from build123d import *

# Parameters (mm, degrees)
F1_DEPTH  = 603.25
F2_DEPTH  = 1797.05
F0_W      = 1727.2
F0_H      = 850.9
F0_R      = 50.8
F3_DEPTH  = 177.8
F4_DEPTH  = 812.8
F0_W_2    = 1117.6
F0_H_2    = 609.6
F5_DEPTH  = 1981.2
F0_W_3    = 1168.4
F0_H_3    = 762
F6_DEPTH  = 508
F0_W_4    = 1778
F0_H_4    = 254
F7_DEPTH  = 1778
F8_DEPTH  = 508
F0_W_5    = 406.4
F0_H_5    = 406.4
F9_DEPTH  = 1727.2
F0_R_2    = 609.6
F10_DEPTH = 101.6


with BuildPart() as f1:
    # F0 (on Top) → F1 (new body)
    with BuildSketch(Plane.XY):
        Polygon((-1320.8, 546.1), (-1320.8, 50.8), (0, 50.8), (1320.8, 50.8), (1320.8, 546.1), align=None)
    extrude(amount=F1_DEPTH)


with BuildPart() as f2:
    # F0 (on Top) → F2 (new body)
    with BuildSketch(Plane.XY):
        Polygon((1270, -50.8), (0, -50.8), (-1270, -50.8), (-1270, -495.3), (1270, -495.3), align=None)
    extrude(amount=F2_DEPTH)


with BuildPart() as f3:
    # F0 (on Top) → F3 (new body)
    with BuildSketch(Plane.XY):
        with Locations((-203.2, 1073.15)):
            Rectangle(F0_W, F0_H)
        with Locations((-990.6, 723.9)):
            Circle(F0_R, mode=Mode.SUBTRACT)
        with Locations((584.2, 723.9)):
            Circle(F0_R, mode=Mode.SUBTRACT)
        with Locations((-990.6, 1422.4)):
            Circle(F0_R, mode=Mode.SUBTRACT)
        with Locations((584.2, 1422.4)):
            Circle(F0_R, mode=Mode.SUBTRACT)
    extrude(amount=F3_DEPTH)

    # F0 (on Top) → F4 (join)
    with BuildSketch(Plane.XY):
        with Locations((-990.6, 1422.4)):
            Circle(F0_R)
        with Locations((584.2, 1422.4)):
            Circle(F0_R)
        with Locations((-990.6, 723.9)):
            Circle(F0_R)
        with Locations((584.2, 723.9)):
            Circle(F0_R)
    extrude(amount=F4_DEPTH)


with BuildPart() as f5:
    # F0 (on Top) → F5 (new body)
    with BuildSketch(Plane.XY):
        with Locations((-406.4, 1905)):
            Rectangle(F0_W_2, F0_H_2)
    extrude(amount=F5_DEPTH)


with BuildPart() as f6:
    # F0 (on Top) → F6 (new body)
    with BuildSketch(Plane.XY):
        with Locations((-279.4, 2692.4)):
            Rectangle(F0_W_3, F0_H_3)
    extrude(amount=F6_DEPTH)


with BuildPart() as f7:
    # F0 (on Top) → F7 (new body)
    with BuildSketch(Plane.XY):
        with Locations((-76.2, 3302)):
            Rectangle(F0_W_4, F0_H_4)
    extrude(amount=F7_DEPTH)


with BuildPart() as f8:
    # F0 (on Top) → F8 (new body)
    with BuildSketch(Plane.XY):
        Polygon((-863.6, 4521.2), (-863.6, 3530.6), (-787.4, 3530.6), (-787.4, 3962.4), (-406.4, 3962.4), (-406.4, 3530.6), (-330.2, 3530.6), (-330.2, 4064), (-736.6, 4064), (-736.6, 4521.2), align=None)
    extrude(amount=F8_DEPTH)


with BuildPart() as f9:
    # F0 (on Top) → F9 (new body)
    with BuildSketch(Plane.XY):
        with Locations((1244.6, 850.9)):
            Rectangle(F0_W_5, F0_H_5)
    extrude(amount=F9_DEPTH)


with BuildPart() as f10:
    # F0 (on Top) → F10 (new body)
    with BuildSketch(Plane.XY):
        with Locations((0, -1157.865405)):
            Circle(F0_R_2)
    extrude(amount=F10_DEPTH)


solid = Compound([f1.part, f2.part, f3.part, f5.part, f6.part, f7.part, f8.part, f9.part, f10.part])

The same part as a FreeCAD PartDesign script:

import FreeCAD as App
import Part
import Sketcher

V = App.Vector
Q = App.Units.Quantity

doc = App.newDocument("Part")
body = doc.addObject("PartDesign::Body", "Body")

sketch1 = doc.addObject("Sketcher::SketchObject", "Sketch")
body.addObject(sketch1)
sketch1.AttachmentSupport = (doc.XY_Plane, [""])
sketch1.MapMode = "FlatFace"
sketch1.addGeometry(Part.LineSegment(V(-1320.8, 546.1, 0), V(-1320.8, 50.8, 0)), False)
sketch1.addGeometry(Part.LineSegment(V(-1320.8, 50.8, 0), V(1320.8, 50.8, 0)), False)
sketch1.addGeometry(Part.LineSegment(V(1320.8, 50.8, 0), V(1320.8, 546.1, 0)), False)
sketch1.addGeometry(Part.LineSegment(V(1320.8, 546.1, 0), V(-1320.8, 546.1, 0)), False)
sketch1.addConstraint(Sketcher.Constraint("Coincident", 0, 2, 1, 1))
sketch1.addConstraint(Sketcher.Constraint("Coincident", 1, 2, 2, 1))
sketch1.addConstraint(Sketcher.Constraint("Coincident", 2, 2, 3, 1))
sketch1.addConstraint(Sketcher.Constraint("Coincident", 3, 2, 0, 1))
sketch1.addConstraint(Sketcher.Constraint("Vertical", 0))
sketch1.addConstraint(Sketcher.Constraint("Horizontal", 1))
sketch1.addConstraint(Sketcher.Constraint("Vertical", 2))
sketch1.addConstraint(Sketcher.Constraint("Horizontal", 3))
sketch1.addConstraint(Sketcher.Constraint("DistanceX", 1, 1, 1, 2, Q("104 in")))
sketch1.addConstraint(Sketcher.Constraint("DistanceY", 0, 2, 0, 1, Q("19.5 in")))
sketch1.addConstraint(Sketcher.Constraint("DistanceX", 0, 2, -1, 1, Q("52 in")))
sketch1.addConstraint(Sketcher.Constraint("DistanceY", -1, 1, 0, 2, Q("2 in")))
pad1 = doc.addObject("PartDesign::Pad", "Pad")
body.addObject(pad1)
pad1.Profile = sketch1
pad1.Length = Q("23.75 in")
body2 = doc.addObject("PartDesign::Body", "Body001")

sketch2 = doc.addObject("Sketcher::SketchObject", "Sketch001")
body2.addObject(sketch2)
sketch2.AttachmentSupport = (doc.getObject("XY_Plane001"), [""])
sketch2.MapMode = "FlatFace"
sketch2.addGeometry(Part.LineSegment(V(1270, -50.8, 0), V(-1270, -50.8, 0)), False)
sketch2.addGeometry(Part.LineSegment(V(-1270, -50.8, 0), V(-1270, -495.3, 0)), False)
sketch2.addGeometry(Part.LineSegment(V(-1270, -495.3, 0), V(1270, -495.3, 0)), False)
sketch2.addGeometry(Part.LineSegment(V(1270, -495.3, 0), V(1270, -50.8, 0)), False)
sketch2.addConstraint(Sketcher.Constraint("Coincident", 0, 2, 1, 1))
sketch2.addConstraint(Sketcher.Constraint("Coincident", 1, 2, 2, 1))
sketch2.addConstraint(Sketcher.Constraint("Coincident", 2, 2, 3, 1))
sketch2.addConstraint(Sketcher.Constraint("Coincident", 3, 2, 0, 1))
sketch2.addConstraint(Sketcher.Constraint("Horizontal", 0))
sketch2.addConstraint(Sketcher.Constraint("Vertical", 1))
sketch2.addConstraint(Sketcher.Constraint("Horizontal", 2))
sketch2.addConstraint(Sketcher.Constraint("Vertical", 3))
sketch2.addConstraint(Sketcher.Constraint("DistanceX", 0, 2, 0, 1, Q("100 in")))
sketch2.addConstraint(Sketcher.Constraint("DistanceY", 1, 2, 1, 1, Q("17.5 in")))
sketch2.addConstraint(Sketcher.Constraint("DistanceX", 0, 2, -1, 1, Q("50 in")))
sketch2.addConstraint(Sketcher.Constraint("DistanceY", 0, 2, -1, 1, Q("2 in")))
pad2 = doc.addObject("PartDesign::Pad", "Pad001")
body2.addObject(pad2)
pad2.Profile = sketch2
pad2.Length = Q("70.75 in")
body3 = doc.addObject("PartDesign::Body", "Body002")

sketch3 = doc.addObject("Sketcher::SketchObject", "Sketch002")
body3.addObject(sketch3)
sketch3.AttachmentSupport = (doc.getObject("XY_Plane002"), [""])
sketch3.MapMode = "FlatFace"
sketch3.addGeometry(Part.LineSegment(V(-1066.8, 1498.6, 0), V(-1066.8, 647.7, 0)), False)
sketch3.addGeometry(Part.LineSegment(V(-1066.8, 647.7, 0), V(660.4, 647.7, 0)), False)
sketch3.addGeometry(Part.LineSegment(V(660.4, 647.7, 0), V(660.4, 1498.6, 0)), False)
sketch3.addGeometry(Part.LineSegment(V(660.4, 1498.6, 0), V(-1066.8, 1498.6, 0)), False)
sketch3.addGeometry(Part.Circle(V(-990.6, 723.9, 0), V(0, 0, 1), 50.8), False)
sketch3.addGeometry(Part.Circle(V(584.2, 723.9, 0), V(0, 0, 1), 50.8), False)
sketch3.addGeometry(Part.Circle(V(-990.6, 1422.4, 0), V(0, 0, 1), 50.8), False)
sketch3.addGeometry(Part.Circle(V(584.2, 1422.4, 0), V(0, 0, 1), 50.8), False)
sketch3.addConstraint(Sketcher.Constraint("Coincident", 0, 2, 1, 1))
sketch3.addConstraint(Sketcher.Constraint("Coincident", 1, 2, 2, 1))
sketch3.addConstraint(Sketcher.Constraint("Coincident", 2, 2, 3, 1))
sketch3.addConstraint(Sketcher.Constraint("Coincident", 3, 2, 0, 1))
sketch3.addConstraint(Sketcher.Constraint("Vertical", 0))
sketch3.addConstraint(Sketcher.Constraint("Horizontal", 1))
sketch3.addConstraint(Sketcher.Constraint("Vertical", 2))
sketch3.addConstraint(Sketcher.Constraint("Horizontal", 3))
sketch3.addConstraint(Sketcher.Constraint("Equal", 4, 5))
sketch3.addConstraint(Sketcher.Constraint("Equal", 5, 6))
sketch3.addConstraint(Sketcher.Constraint("Equal", 6, 7))
sketch3.addConstraint(Sketcher.Constraint("Horizontal", 4, 3, 5, 3))
sketch3.addConstraint(Sketcher.Constraint("Horizontal", 6, 3, 7, 3))
sketch3.addConstraint(Sketcher.Constraint("Vertical", 4, 3, 6, 3))
sketch3.addConstraint(Sketcher.Constraint("Vertical", 5, 3, 7, 3))
sketch3.addConstraint(Sketcher.Constraint("Diameter", 4, Q("4 in")))
sketch3.addConstraint(Sketcher.Constraint("DistanceX", 1, 1, 1, 2, Q("68 in")))
sketch3.addConstraint(Sketcher.Constraint("DistanceY", 0, 2, 0, 1, Q("33.5 in")))
sketch3.addConstraint(Sketcher.Constraint("DistanceX", 4, 3, -1, 1, Q("39 in")))
sketch3.addConstraint(Sketcher.Constraint("DistanceX", -1, 1, 5, 3, Q("23 in")))
sketch3.addConstraint(Sketcher.Constraint("DistanceY", -1, 1, 6, 3, Q("56 in")))
sketch3.addConstraint(Sketcher.Constraint("DistanceX", 0, 2, -1, 1, Q("42 in")))
sketch3.addConstraint(Sketcher.Constraint("DistanceY", -1, 1, 2, 2, Q("59 in")))
sketch3.addConstraint(Sketcher.Constraint("DistanceY", 0, 2, 4, 3, Q("3 in")))
pad3 = doc.addObject("PartDesign::Pad", "Pad002")
body3.addObject(pad3)
pad3.Profile = sketch3
pad3.Length = Q("7 in")

sketch4 = doc.addObject("Sketcher::SketchObject", "Sketch003")
body3.addObject(sketch4)
sketch4.AttachmentSupport = (doc.getObject("XY_Plane002"), [""])
sketch4.MapMode = "FlatFace"
sketch4.addGeometry(Part.Circle(V(-990.6, 1422.4, 0), V(0, 0, 1), 50.8), False)
sketch4.addGeometry(Part.Circle(V(584.2, 1422.4, 0), V(0, 0, 1), 50.8), False)
sketch4.addGeometry(Part.Circle(V(-990.6, 723.9, 0), V(0, 0, 1), 50.8), False)
sketch4.addGeometry(Part.Circle(V(584.2, 723.9, 0), V(0, 0, 1), 50.8), False)
sketch4.addConstraint(Sketcher.Constraint("Equal", 0, 1))
sketch4.addConstraint(Sketcher.Constraint("Equal", 1, 2))
sketch4.addConstraint(Sketcher.Constraint("Equal", 2, 3))
sketch4.addConstraint(Sketcher.Constraint("Horizontal", 0, 3, 1, 3))
sketch4.addConstraint(Sketcher.Constraint("Horizontal", 2, 3, 3, 3))
sketch4.addConstraint(Sketcher.Constraint("Vertical", 0, 3, 2, 3))
sketch4.addConstraint(Sketcher.Constraint("Vertical", 1, 3, 3, 3))
sketch4.addConstraint(Sketcher.Constraint("Diameter", 0, Q("4 in")))
sketch4.addConstraint(Sketcher.Constraint("DistanceX", 0, 3, -1, 1, Q("39 in")))
sketch4.addConstraint(Sketcher.Constraint("DistanceY", -1, 1, 0, 3, Q("56 in")))
sketch4.addConstraint(Sketcher.Constraint("DistanceX", -1, 1, 1, 3, Q("23 in")))
sketch4.addConstraint(Sketcher.Constraint("DistanceY", -1, 1, 2, 3, Q("28.5 in")))
pad4 = doc.addObject("PartDesign::Pad", "Pad003")
body3.addObject(pad4)
pad4.Profile = sketch4
pad4.Length = Q("32 in")
body4 = doc.addObject("PartDesign::Body", "Body003")

sketch5 = doc.addObject("Sketcher::SketchObject", "Sketch004")
body4.addObject(sketch5)
sketch5.AttachmentSupport = (doc.getObject("XY_Plane003"), [""])
sketch5.MapMode = "FlatFace"
sketch5.addGeometry(Part.LineSegment(V(-965.2, 2209.8, 0), V(-965.2, 1600.2, 0)), False)
sketch5.addGeometry(Part.LineSegment(V(-965.2, 1600.2, 0), V(152.4, 1600.2, 0)), False)
sketch5.addGeometry(Part.LineSegment(V(152.4, 1600.2, 0), V(152.4, 2209.8, 0)), False)
sketch5.addGeometry(Part.LineSegment(V(152.4, 2209.8, 0), V(-965.2, 2209.8, 0)), False)
sketch5.addConstraint(Sketcher.Constraint("Coincident", 0, 2, 1, 1))
sketch5.addConstraint(Sketcher.Constraint("Coincident", 1, 2, 2, 1))
sketch5.addConstraint(Sketcher.Constraint("Coincident", 2, 2, 3, 1))
sketch5.addConstraint(Sketcher.Constraint("Coincident", 3, 2, 0, 1))
sketch5.addConstraint(Sketcher.Constraint("Vertical", 0))
sketch5.addConstraint(Sketcher.Constraint("Horizontal", 1))
sketch5.addConstraint(Sketcher.Constraint("Vertical", 2))
sketch5.addConstraint(Sketcher.Constraint("Horizontal", 3))
sketch5.addConstraint(Sketcher.Constraint("DistanceX", 1, 1, 1, 2, Q("44 in")))
sketch5.addConstraint(Sketcher.Constraint("DistanceY", 0, 2, 0, 1, Q("24 in")))
sketch5.addConstraint(Sketcher.Constraint("DistanceX", 0, 2, -1, 1, Q("38 in")))
sketch5.addConstraint(Sketcher.Constraint("DistanceY", -1, 1, 0, 2, Q("63 in")))
pad5 = doc.addObject("PartDesign::Pad", "Pad004")
body4.addObject(pad5)
pad5.Profile = sketch5
pad5.Length = Q("78 in")
body5 = doc.addObject("PartDesign::Body", "Body004")

sketch6 = doc.addObject("Sketcher::SketchObject", "Sketch005")
body5.addObject(sketch6)
sketch6.AttachmentSupport = (doc.getObject("XY_Plane004"), [""])
sketch6.MapMode = "FlatFace"
sketch6.addGeometry(Part.LineSegment(V(-863.6, 3073.4, 0), V(-863.6, 2311.4, 0)), False)
sketch6.addGeometry(Part.LineSegment(V(-863.6, 2311.4, 0), V(304.8, 2311.4, 0)), False)
sketch6.addGeometry(Part.LineSegment(V(304.8, 2311.4, 0), V(304.8, 3073.4, 0)), False)
sketch6.addGeometry(Part.LineSegment(V(304.8, 3073.4, 0), V(-863.6, 3073.4, 0)), False)
sketch6.addConstraint(Sketcher.Constraint("Coincident", 0, 2, 1, 1))
sketch6.addConstraint(Sketcher.Constraint("Coincident", 1, 2, 2, 1))
sketch6.addConstraint(Sketcher.Constraint("Coincident", 2, 2, 3, 1))
sketch6.addConstraint(Sketcher.Constraint("Coincident", 3, 2, 0, 1))
sketch6.addConstraint(Sketcher.Constraint("Vertical", 0))
sketch6.addConstraint(Sketcher.Constraint("Horizontal", 1))
sketch6.addConstraint(Sketcher.Constraint("Vertical", 2))
sketch6.addConstraint(Sketcher.Constraint("Horizontal", 3))
sketch6.addConstraint(Sketcher.Constraint("DistanceX", 1, 1, 1, 2, Q("46 in")))
sketch6.addConstraint(Sketcher.Constraint("DistanceY", 0, 2, 0, 1, Q("30 in")))
sketch6.addConstraint(Sketcher.Constraint("DistanceX", 0, 2, -1, 1, Q("34 in")))
sketch6.addConstraint(Sketcher.Constraint("DistanceY", -1, 1, 0, 2, Q("91 in")))
pad6 = doc.addObject("PartDesign::Pad", "Pad005")
body5.addObject(pad6)
pad6.Profile = sketch6
pad6.Length = Q("20 in")
body6 = doc.addObject("PartDesign::Body", "Body005")

sketch7 = doc.addObject("Sketcher::SketchObject", "Sketch006")
body6.addObject(sketch7)
sketch7.AttachmentSupport = (doc.getObject("XY_Plane005"), [""])
sketch7.MapMode = "FlatFace"
sketch7.addGeometry(Part.LineSegment(V(-965.2, 3429, 0), V(-965.2, 3175, 0)), False)
sketch7.addGeometry(Part.LineSegment(V(-965.2, 3175, 0), V(812.8, 3175, 0)), False)
sketch7.addGeometry(Part.LineSegment(V(812.8, 3175, 0), V(812.8, 3429, 0)), False)
sketch7.addGeometry(Part.LineSegment(V(812.8, 3429, 0), V(-965.2, 3429, 0)), False)
sketch7.addConstraint(Sketcher.Constraint("Coincident", 0, 2, 1, 1))
sketch7.addConstraint(Sketcher.Constraint("Coincident", 1, 2, 2, 1))
sketch7.addConstraint(Sketcher.Constraint("Coincident", 2, 2, 3, 1))
sketch7.addConstraint(Sketcher.Constraint("Coincident", 3, 2, 0, 1))
sketch7.addConstraint(Sketcher.Constraint("Vertical", 0))
sketch7.addConstraint(Sketcher.Constraint("Horizontal", 1))
sketch7.addConstraint(Sketcher.Constraint("Vertical", 2))
sketch7.addConstraint(Sketcher.Constraint("Horizontal", 3))
sketch7.addConstraint(Sketcher.Constraint("DistanceX", 1, 1, 1, 2, Q("70 in")))
sketch7.addConstraint(Sketcher.Constraint("DistanceY", 0, 2, 0, 1, Q("10 in")))
sketch7.addConstraint(Sketcher.Constraint("DistanceX", 0, 2, -1, 1, Q("38 in")))
sketch7.addConstraint(Sketcher.Constraint("DistanceY", -1, 1, 0, 2, Q("125 in")))
pad7 = doc.addObject("PartDesign::Pad", "Pad006")
body6.addObject(pad7)
pad7.Profile = sketch7
pad7.Length = Q("70 in")
body7 = doc.addObject("PartDesign::Body", "Body006")

sketch8 = doc.addObject("Sketcher::SketchObject", "Sketch007")
body7.addObject(sketch8)
sketch8.AttachmentSupport = (doc.getObject("XY_Plane006"), [""])
sketch8.MapMode = "FlatFace"
sketch8.addGeometry(Part.LineSegment(V(-863.6, 4521.2, 0), V(-863.6, 3530.6, 0)), False)
sketch8.addGeometry(Part.LineSegment(V(-863.6, 3530.6, 0), V(-787.4, 3530.6, 0)), False)
sketch8.addGeometry(Part.LineSegment(V(-787.4, 3530.6, 0), V(-787.4, 3962.4, 0)), False)
sketch8.addGeometry(Part.LineSegment(V(-787.4, 3962.4, 0), V(-406.4, 3962.4, 0)), False)
sketch8.addGeometry(Part.LineSegment(V(-406.4, 3962.4, 0), V(-406.4, 3530.6, 0)), False)
sketch8.addGeometry(Part.LineSegment(V(-406.4, 3530.6, 0), V(-330.2, 3530.6, 0)), False)
sketch8.addGeometry(Part.LineSegment(V(-330.2, 3530.6, 0), V(-330.2, 4064, 0)), False)
sketch8.addGeometry(Part.LineSegment(V(-330.2, 4064, 0), V(-736.6, 4064, 0)), False)
sketch8.addGeometry(Part.LineSegment(V(-736.6, 4064, 0), V(-736.6, 4521.2, 0)), False)
sketch8.addGeometry(Part.LineSegment(V(-736.6, 4521.2, 0), V(-863.6, 4521.2, 0)), False)
sketch8.addConstraint(Sketcher.Constraint("Coincident", 0, 2, 1, 1))
sketch8.addConstraint(Sketcher.Constraint("Coincident", 1, 2, 2, 1))
sketch8.addConstraint(Sketcher.Constraint("Coincident", 2, 2, 3, 1))
sketch8.addConstraint(Sketcher.Constraint("Coincident", 3, 2, 4, 1))
sketch8.addConstraint(Sketcher.Constraint("Coincident", 4, 2, 5, 1))
sketch8.addConstraint(Sketcher.Constraint("Coincident", 5, 2, 6, 1))
sketch8.addConstraint(Sketcher.Constraint("Coincident", 6, 2, 7, 1))
sketch8.addConstraint(Sketcher.Constraint("Coincident", 7, 2, 8, 1))
sketch8.addConstraint(Sketcher.Constraint("Coincident", 8, 2, 9, 1))
sketch8.addConstraint(Sketcher.Constraint("Coincident", 9, 2, 0, 1))
sketch8.addConstraint(Sketcher.Constraint("Vertical", 0))
sketch8.addConstraint(Sketcher.Constraint("Horizontal", 1))
sketch8.addConstraint(Sketcher.Constraint("Vertical", 2))
sketch8.addConstraint(Sketcher.Constraint("Horizontal", 3))
sketch8.addConstraint(Sketcher.Constraint("Vertical", 4))
sketch8.addConstraint(Sketcher.Constraint("Horizontal", 5))
sketch8.addConstraint(Sketcher.Constraint("Vertical", 6))
sketch8.addConstraint(Sketcher.Constraint("Horizontal", 7))
sketch8.addConstraint(Sketcher.Constraint("Vertical", 8))
sketch8.addConstraint(Sketcher.Constraint("Horizontal", 9))
sketch8.addConstraint(Sketcher.Constraint("Horizontal", 1, 2, 4, 2))
sketch8.addConstraint(Sketcher.Constraint("Equal", 1, 5))
sketch8.addConstraint(Sketcher.Constraint("DistanceX", 1, 1, 1, 2, Q("3 in")))
sketch8.addConstraint(Sketcher.Constraint("DistanceX", 3, 1, 3, 2, Q("15 in")))
sketch8.addConstraint(Sketcher.Constraint("DistanceX", 7, 2, 7, 1, Q("16 in")))
sketch8.addConstraint(Sketcher.Constraint("DistanceY", 0, 2, 0, 1, Q("39 in")))
sketch8.addConstraint(Sketcher.Constraint("DistanceY", 2, 1, 2, 2, Q("17 in")))
sketch8.addConstraint(Sketcher.Constraint("DistanceY", 6, 1, 6, 2, Q("21 in")))
sketch8.addConstraint(Sketcher.Constraint("DistanceX", 0, 2, -1, 1, Q("34 in")))
sketch8.addConstraint(Sketcher.Constraint("DistanceY", -1, 1, 0, 2, Q("139 in")))
pad8 = doc.addObject("PartDesign::Pad", "Pad007")
body7.addObject(pad8)
pad8.Profile = sketch8
pad8.Length = Q("20 in")
body8 = doc.addObject("PartDesign::Body", "Body007")

sketch9 = doc.addObject("Sketcher::SketchObject", "Sketch008")
body8.addObject(sketch9)
sketch9.AttachmentSupport = (doc.getObject("XY_Plane007"), [""])
sketch9.MapMode = "FlatFace"
sketch9.addGeometry(Part.LineSegment(V(1041.4, 1054.1, 0), V(1041.4, 647.7, 0)), False)
sketch9.addGeometry(Part.LineSegment(V(1041.4, 647.7, 0), V(1447.8, 647.7, 0)), False)
sketch9.addGeometry(Part.LineSegment(V(1447.8, 647.7, 0), V(1447.8, 1054.1, 0)), False)
sketch9.addGeometry(Part.LineSegment(V(1447.8, 1054.1, 0), V(1041.4, 1054.1, 0)), False)
sketch9.addConstraint(Sketcher.Constraint("Coincident", 0, 2, 1, 1))
sketch9.addConstraint(Sketcher.Constraint("Coincident", 1, 2, 2, 1))
sketch9.addConstraint(Sketcher.Constraint("Coincident", 2, 2, 3, 1))
sketch9.addConstraint(Sketcher.Constraint("Coincident", 3, 2, 0, 1))
sketch9.addConstraint(Sketcher.Constraint("Vertical", 0))
sketch9.addConstraint(Sketcher.Constraint("Horizontal", 1))
sketch9.addConstraint(Sketcher.Constraint("Vertical", 2))
sketch9.addConstraint(Sketcher.Constraint("Horizontal", 3))
sketch9.addConstraint(Sketcher.Constraint("Equal", 3, 0))
sketch9.addConstraint(Sketcher.Constraint("DistanceX", 1, 1, 1, 2, Q("16 in")))
sketch9.addConstraint(Sketcher.Constraint("DistanceX", -1, 1, 0, 2, Q("41 in")))
sketch9.addConstraint(Sketcher.Constraint("DistanceY", -1, 1, 0, 2, Q("25.5 in")))
pad9 = doc.addObject("PartDesign::Pad", "Pad008")
body8.addObject(pad9)
pad9.Profile = sketch9
pad9.Length = Q("68 in")
body9 = doc.addObject("PartDesign::Body", "Body008")

sketch10 = doc.addObject("Sketcher::SketchObject", "Sketch009")
body9.addObject(sketch10)
sketch10.AttachmentSupport = (doc.getObject("XY_Plane008"), [""])
sketch10.MapMode = "FlatFace"
sketch10.addGeometry(Part.Circle(V(0, -1157.865405, 0), V(0, 0, 1), 609.6), False)
sketch10.addConstraint(Sketcher.Constraint("PointOnObject", 0, 3, -2))
sketch10.addConstraint(Sketcher.Constraint("Diameter", 0, Q("48 in")))
sketch10.addConstraint(Sketcher.Constraint("DistanceY", 0, 3, -1, 1, Q("1157.865405 mm")))
pad10 = doc.addObject("PartDesign::Pad", "Pad009")
body9.addObject(pad10)
pad10.Profile = sketch10
pad10.Length = Q("4 in")

doc.recompute()
